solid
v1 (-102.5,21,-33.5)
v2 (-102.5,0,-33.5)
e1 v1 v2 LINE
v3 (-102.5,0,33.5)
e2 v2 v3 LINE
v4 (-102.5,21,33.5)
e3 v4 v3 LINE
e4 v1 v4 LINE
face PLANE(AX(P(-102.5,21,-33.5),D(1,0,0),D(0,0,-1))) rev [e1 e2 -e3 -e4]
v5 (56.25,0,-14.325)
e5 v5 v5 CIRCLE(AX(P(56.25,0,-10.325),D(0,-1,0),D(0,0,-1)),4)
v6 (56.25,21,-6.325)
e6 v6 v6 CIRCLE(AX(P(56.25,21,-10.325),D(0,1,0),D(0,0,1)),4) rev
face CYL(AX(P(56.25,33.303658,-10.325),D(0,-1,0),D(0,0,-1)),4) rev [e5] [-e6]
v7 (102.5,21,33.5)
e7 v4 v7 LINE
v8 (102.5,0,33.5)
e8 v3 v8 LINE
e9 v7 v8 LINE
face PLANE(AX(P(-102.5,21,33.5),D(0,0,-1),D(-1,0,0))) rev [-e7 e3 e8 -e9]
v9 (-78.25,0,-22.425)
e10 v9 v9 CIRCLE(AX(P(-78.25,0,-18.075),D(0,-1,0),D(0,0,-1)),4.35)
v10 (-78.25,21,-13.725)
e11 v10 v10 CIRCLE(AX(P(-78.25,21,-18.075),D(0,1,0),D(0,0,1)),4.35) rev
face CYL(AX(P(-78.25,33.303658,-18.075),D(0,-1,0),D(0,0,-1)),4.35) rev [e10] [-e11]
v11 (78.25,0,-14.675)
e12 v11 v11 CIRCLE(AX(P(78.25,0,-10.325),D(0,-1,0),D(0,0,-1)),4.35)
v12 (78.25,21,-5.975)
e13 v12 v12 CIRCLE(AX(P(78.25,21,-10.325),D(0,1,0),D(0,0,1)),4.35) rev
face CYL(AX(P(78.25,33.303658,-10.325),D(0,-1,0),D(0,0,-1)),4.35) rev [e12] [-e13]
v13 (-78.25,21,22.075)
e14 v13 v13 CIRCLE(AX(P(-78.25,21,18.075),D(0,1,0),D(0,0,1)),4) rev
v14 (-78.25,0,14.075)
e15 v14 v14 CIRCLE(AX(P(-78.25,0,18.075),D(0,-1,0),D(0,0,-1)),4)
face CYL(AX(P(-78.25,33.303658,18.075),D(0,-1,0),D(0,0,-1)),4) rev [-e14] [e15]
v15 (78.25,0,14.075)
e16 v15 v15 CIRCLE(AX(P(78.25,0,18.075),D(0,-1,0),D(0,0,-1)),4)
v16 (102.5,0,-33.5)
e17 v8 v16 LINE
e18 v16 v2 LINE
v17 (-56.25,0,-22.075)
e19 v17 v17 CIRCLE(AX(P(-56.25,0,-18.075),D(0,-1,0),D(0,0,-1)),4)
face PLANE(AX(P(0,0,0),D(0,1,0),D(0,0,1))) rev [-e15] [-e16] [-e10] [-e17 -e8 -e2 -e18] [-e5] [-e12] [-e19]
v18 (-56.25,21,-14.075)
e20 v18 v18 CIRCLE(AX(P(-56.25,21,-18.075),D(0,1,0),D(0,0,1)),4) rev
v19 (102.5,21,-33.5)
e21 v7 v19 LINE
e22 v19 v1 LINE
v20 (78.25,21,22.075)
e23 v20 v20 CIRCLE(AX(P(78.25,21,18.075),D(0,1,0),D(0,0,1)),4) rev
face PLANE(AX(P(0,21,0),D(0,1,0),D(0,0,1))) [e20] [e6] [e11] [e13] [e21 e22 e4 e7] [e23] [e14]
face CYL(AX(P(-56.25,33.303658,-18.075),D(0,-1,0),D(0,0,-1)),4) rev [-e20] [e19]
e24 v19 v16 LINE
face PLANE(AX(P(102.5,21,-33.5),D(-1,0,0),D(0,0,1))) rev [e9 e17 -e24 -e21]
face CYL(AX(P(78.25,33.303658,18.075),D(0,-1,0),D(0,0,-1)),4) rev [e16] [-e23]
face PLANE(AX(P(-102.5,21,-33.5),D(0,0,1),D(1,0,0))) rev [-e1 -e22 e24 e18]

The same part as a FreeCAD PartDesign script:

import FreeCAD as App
import Part
import Sketcher
Q = App.Units.Quantity

doc = App.newDocument("Part")
body = doc.addObject("PartDesign::Body", "Body")

sketch1 = body.newObject("Sketcher::SketchObject", "Sketch")
sketch1.AttachmentSupport = (doc.getObject("XZ_Plane"), [""])
sketch1.MapMode = "FlatFace"
sketch1.addGeometry([
    Part.LineSegment(App.Vector(-102, -34, 0), App.Vector(-102, 34, 0)),
    Part.LineSegment(App.Vector(-102, 34, 0), App.Vector(102, 34, 0)),
    Part.LineSegment(App.Vector(102, 34, 0), App.Vector(102, -34, 0)),
    Part.LineSegment(App.Vector(102, -34, 0), App.Vector(-102, -34, 0)),
], False)
sketch1.addConstraint([
    Sketcher.Constraint("Coincident", 0, 2, 1, 1),
    Sketcher.Constraint("Coincident", 1, 2, 2, 1),
    Sketcher.Constraint("Coincident", 2, 2, 3, 1),
    Sketcher.Constraint("Coincident", 3, 2, 0, 1),
    Sketcher.Constraint("Vertical", 0),
    Sketcher.Constraint("Horizontal", 1),
    Sketcher.Constraint("Vertical", 2),
    Sketcher.Constraint("Horizontal", 3),
    Sketcher.Constraint("Symmetric", 0, 2, 2, 2, -1, 1),
    Sketcher.Constraint("DistanceX", 1, 1, 1, 2, Q("205 mm")),
    Sketcher.Constraint("DistanceY", 0, 1, 0, 2, Q("67 mm")),
])
pad1 = body.newObject("PartDesign::Pad", "Pad")
pad1.Profile = sketch1
pad1.Length = 21
pad1.Reversed = True

sketch2 = body.newObject("Sketcher::SketchObject", "Sketch001")
sketch2.AttachmentSupport = (doc.getObject("XZ_Plane"), [""])
sketch2.MapMode = "FlatFace"
sketch2.addGeometry([
    Part.Circle(App.Vector(-78.2, -18.1, 0), App.Vector(0, 0, 1), 4.3),
    Part.Circle(App.Vector(78.2, -10.3, 0), App.Vector(0, 0, 1), 4.3),
    Part.Circle(App.Vector(-56.2, -18.1, 0), App.Vector(0, 0, 1), 4),
    Part.Circle(App.Vector(56.2, -10.3, 0), App.Vector(0, 0, 1), 4),
    Part.Circle(App.Vector(78.2, 18.1, 0), App.Vector(0, 0, 1), 4),
    Part.Circle(App.Vector(-78.2, 18.1, 0), App.Vector(0, 0, 1), 4),
], False)
sketch2.addConstraint([
    Sketcher.Constraint("Equal", 0, 1),
    Sketcher.Constraint("Equal", 2, 3),
    Sketcher.Constraint("Equal", 3, 4),
    Sketcher.Constraint("Equal", 4, 5),
    Sketcher.Constraint("Symmetric", 0, 3, 4, 3, -1, 1),
    Sketcher.Constraint("Symmetric", 4, 3, 5, 3, -2),
    Sketcher.Constraint("Horizontal", 0, 3, 2, 3),
    Sketcher.Constraint("Horizontal", 1, 3, 3, 3),
    Sketcher.Constraint("Vertical", 1, 3, 4, 3),
    Sketcher.Constraint("Diameter", 2, Q("8 mm")),
    Sketcher.Constraint("Diameter", 0, Q("8.7 mm")),
    Sketcher.Constraint("DistanceX", 0, 3, 2, 3, Q("22 mm")),
    Sketcher.Constraint("DistanceX", 3, 3, 1, 3, Q("22 mm")),
    Sketcher.Constraint("DistanceX", 0, 3, 1, 3, Q("156.5 mm")),
    Sketcher.Constraint("DistanceY", 1, 3, 4, 3, Q("28.4 mm")),
    Sketcher.Constraint("DistanceY", 0, 3, 1, 3, Q("7.75 mm")),
])
pocket1 = body.newObject("PartDesign::Pocket", "Pocket")
pocket1.Profile = sketch2
pocket1.Length = 21

doc.recompute()
